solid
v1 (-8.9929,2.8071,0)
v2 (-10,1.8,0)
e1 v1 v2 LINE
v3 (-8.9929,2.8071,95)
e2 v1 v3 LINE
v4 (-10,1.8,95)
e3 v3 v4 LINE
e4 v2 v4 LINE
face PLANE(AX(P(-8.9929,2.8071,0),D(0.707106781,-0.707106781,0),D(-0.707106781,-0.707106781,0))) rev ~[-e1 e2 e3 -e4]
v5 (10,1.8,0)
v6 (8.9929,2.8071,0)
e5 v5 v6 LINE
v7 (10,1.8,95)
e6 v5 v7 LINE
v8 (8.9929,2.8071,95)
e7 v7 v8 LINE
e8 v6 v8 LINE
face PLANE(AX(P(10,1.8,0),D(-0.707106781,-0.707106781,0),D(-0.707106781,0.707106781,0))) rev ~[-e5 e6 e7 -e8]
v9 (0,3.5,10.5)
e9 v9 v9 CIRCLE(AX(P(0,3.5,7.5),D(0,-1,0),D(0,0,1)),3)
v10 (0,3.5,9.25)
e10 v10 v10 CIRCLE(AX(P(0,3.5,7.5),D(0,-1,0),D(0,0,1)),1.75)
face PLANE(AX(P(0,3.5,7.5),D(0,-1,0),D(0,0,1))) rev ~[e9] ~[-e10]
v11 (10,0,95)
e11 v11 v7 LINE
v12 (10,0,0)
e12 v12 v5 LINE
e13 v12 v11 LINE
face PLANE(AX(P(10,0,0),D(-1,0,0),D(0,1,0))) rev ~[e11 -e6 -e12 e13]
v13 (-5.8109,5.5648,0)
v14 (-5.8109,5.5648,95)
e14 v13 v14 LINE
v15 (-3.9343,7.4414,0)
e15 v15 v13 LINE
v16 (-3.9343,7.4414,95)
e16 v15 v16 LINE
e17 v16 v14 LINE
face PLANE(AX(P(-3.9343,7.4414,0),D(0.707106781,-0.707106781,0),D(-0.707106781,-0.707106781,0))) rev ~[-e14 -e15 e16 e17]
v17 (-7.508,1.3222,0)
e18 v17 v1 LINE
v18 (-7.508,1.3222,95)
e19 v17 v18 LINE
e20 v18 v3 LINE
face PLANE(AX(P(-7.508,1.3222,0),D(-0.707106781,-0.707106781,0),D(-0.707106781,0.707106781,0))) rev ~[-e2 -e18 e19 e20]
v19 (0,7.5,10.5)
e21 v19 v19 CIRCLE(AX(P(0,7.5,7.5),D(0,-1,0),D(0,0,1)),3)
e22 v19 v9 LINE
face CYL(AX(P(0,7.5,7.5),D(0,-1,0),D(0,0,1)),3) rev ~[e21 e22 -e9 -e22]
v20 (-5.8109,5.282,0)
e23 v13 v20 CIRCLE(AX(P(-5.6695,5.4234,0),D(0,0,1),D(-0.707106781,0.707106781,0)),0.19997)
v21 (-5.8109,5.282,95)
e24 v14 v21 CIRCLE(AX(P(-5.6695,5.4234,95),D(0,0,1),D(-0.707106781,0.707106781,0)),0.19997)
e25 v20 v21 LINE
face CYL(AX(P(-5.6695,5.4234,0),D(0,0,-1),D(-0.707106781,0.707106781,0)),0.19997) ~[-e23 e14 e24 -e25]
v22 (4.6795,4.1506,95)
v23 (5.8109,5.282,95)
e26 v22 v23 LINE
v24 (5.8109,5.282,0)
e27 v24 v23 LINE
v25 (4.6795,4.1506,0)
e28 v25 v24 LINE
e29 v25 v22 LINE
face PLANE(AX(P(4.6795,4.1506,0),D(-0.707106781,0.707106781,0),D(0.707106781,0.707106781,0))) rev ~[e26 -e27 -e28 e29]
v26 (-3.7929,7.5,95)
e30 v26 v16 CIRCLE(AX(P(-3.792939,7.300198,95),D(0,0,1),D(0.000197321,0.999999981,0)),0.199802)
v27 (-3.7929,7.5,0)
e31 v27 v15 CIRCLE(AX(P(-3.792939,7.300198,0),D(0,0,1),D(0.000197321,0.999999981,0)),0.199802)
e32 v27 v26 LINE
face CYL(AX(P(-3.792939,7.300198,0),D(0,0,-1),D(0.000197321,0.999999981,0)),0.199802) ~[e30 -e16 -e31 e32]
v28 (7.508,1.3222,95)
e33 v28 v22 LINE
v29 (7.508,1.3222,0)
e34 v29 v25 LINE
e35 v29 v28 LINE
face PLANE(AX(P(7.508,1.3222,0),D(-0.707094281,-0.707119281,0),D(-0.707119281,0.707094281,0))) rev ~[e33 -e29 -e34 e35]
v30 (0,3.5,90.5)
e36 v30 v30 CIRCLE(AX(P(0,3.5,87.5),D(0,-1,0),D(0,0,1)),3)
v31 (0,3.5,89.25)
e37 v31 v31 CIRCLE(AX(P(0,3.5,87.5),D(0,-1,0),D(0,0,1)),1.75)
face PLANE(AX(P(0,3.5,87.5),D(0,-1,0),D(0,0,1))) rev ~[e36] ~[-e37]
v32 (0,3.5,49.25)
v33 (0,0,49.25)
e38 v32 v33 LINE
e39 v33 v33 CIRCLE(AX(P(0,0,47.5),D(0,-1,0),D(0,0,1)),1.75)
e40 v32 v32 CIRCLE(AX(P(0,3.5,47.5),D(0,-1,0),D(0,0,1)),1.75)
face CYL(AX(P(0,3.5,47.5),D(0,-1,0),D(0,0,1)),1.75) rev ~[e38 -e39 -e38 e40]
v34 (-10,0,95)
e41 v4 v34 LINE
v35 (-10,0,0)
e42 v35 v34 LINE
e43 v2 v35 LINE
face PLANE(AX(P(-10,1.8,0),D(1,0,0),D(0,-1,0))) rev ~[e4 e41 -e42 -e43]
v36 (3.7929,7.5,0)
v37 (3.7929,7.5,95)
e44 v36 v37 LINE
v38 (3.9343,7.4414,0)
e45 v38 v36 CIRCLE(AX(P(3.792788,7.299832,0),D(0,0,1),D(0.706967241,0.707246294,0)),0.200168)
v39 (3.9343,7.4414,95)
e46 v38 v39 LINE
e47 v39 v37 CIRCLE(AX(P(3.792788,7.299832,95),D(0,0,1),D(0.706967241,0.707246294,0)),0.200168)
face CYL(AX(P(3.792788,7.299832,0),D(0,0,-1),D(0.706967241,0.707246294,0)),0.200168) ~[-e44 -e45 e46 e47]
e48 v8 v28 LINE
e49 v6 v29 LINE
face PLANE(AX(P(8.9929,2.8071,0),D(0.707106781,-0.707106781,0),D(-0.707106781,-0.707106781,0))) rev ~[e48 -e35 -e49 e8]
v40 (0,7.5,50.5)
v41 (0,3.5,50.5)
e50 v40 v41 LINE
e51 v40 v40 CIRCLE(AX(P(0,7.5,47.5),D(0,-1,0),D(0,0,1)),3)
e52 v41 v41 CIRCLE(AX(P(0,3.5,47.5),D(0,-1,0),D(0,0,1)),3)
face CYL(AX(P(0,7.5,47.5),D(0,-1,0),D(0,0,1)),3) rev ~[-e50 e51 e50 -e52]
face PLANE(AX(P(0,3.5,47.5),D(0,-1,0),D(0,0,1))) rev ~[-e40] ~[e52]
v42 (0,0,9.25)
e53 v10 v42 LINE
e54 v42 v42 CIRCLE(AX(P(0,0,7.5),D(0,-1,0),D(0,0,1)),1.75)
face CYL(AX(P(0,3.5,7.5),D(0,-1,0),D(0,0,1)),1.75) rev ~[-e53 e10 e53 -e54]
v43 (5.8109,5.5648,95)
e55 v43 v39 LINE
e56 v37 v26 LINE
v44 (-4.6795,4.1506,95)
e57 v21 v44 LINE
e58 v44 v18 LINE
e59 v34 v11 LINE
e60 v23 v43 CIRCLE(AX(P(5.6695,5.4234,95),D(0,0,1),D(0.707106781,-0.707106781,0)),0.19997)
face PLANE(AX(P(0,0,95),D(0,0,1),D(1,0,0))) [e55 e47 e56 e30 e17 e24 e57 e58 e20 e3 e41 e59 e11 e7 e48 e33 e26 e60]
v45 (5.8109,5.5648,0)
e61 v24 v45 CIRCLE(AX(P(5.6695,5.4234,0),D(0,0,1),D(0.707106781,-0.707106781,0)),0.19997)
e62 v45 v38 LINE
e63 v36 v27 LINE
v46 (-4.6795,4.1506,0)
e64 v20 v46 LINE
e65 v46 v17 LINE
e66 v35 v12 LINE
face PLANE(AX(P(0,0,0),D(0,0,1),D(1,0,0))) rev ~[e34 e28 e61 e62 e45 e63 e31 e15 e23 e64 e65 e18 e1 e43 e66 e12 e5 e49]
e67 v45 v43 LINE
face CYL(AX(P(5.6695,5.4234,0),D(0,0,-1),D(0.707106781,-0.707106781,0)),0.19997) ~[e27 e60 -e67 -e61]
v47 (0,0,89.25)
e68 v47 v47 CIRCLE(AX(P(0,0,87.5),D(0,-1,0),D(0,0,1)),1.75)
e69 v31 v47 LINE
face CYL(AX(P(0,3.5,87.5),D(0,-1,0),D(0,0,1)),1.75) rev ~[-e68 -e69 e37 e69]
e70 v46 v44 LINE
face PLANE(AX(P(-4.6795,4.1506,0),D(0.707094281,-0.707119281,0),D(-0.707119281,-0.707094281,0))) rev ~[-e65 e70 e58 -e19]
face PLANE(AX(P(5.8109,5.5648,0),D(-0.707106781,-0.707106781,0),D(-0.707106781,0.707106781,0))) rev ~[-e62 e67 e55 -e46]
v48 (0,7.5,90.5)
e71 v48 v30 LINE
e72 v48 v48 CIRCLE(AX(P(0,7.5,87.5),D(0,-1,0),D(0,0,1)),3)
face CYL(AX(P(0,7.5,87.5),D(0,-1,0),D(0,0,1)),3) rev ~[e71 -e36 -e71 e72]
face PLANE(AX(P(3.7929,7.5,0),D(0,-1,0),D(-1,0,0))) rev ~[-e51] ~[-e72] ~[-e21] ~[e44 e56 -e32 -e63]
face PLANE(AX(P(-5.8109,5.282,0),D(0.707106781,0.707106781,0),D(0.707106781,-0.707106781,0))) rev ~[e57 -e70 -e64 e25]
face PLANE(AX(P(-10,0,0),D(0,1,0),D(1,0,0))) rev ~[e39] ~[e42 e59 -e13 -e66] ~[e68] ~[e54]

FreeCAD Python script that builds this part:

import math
import FreeCAD as App
import Part
import Sketcher

V = App.Vector

doc = App.newDocument("Part")
params = doc.addObject("Spreadsheet::Sheet", "Params")
for row, (alias, value) in enumerate([
    ("sketch1_radius", "0.2 mm"),
    ("sketch1_width", "20 mm"),
    ("sketch1_length", "4 mm"),
    ("sketch1_height", "1.8 mm"),
    ("sketch1_length2", "2.1 mm"),
    ("pad1_length", "95 mm"),
    ("sketch2_diameter", "3.5 mm"),
    ("hole_diameter", "3.5 mm"),
    ("hole_depth", "7.5 mm"),
    ("hole_cbore_diameter", "6 mm"),
    ("hole_cbore_depth", "4 mm"),
    ("linearpattern_pitch", "40 mm"),
], start=1):
    params.set(f"A{row}", alias)
    params.set(f"B{row}", "=" + value)
    params.setAlias(f"B{row}", alias)

body = doc.addObject("PartDesign::Body", "Body")

# Sketch on XY plane
sketch1 = doc.addObject("Sketcher::SketchObject", "Sketch")
body.addObject(sketch1)
sketch1.AttachmentSupport = (doc.XY_Plane, [""])
sketch1.MapMode = "FlatFace"
sketch1.addGeometry([
    Part.LineSegment(V(-8.99, 2.81, 0), V(-10, 1.8, 0)),  # 0
    Part.LineSegment(V(-10, 1.8, 0), V(-10, 0, 0)),  # 1
    Part.LineSegment(V(-10, 0, 0), V(10, 0, 0)),  # 2
    Part.LineSegment(V(10, 0, 0), V(10, 1.8, 0)),  # 3
    Part.LineSegment(V(10, 1.8, 0), V(8.99, 2.81, 0)),  # 4
    Part.LineSegment(V(8.99, 2.81, 0), V(7.51, 1.32, 0)),  # 5
    Part.LineSegment(V(7.51, 1.32, 0), V(4.68, 4.15, 0)),  # 6
    Part.LineSegment(V(4.68, 4.15, 0), V(5.81, 5.28, 0)),  # 7
    Part.ArcOfCircle(Part.Circle(V(5.67, 5.42, 0), V(0, 0, 1), 0.2), math.radians(-45), math.radians(45)),  # 8
    Part.LineSegment(V(5.81, 5.56, 0), V(3.93, 7.44, 0)),  # 9
    Part.ArcOfCircle(Part.Circle(V(3.79, 7.3, 0), V(0, 0, 1), 0.2), math.radians(45), math.radians(90)),  # 10
    Part.LineSegment(V(3.79, 7.5, 0), V(-3.79, 7.5, 0)),  # 11
    Part.ArcOfCircle(Part.Circle(V(-3.79, 7.3, 0), V(0, 0, 1), 0.2), math.radians(90), math.radians(135)),  # 12
    Part.LineSegment(V(-3.93, 7.44, 0), V(-5.81, 5.56, 0)),  # 13
    Part.ArcOfCircle(Part.Circle(V(-5.67, 5.42, 0), V(0, 0, 1), 0.2), math.radians(135), math.radians(225)),  # 14
    Part.LineSegment(V(-5.81, 5.28, 0), V(-4.68, 4.15, 0)),  # 15
    Part.LineSegment(V(-4.68, 4.15, 0), V(-7.51, 1.32, 0)),  # 16
    Part.LineSegment(V(-7.51, 1.32, 0), V(-8.99, 2.81, 0)),  # 17
], False)
sketch1.addConstraint([
    Sketcher.Constraint("Coincident", 0, 2, 1, 1),
    Sketcher.Constraint("Coincident", 1, 2, 2, 1),
    Sketcher.Constraint("Coincident", 2, 2, 3, 1),
    Sketcher.Constraint("Coincident", 3, 2, 4, 1),
    Sketcher.Constraint("Coincident", 4, 2, 5, 1),
    Sketcher.Constraint("Coincident", 5, 2, 6, 1),
    Sketcher.Constraint("Coincident", 6, 2, 7, 1),
    Sketcher.Constraint("Tangent", 7, 2, 8, 1),
    Sketcher.Constraint("Tangent", 8, 2, 9, 1),
    Sketcher.Constraint("Tangent", 9, 2, 10, 1),
    Sketcher.Constraint("Tangent", 10, 2, 11, 1),
    Sketcher.Constraint("Tangent", 11, 2, 12, 1),
    Sketcher.Constraint("Tangent", 12, 2, 13, 1),
    Sketcher.Constraint("Tangent", 13, 2, 14, 1),
    Sketcher.Constraint("Tangent", 14, 2, 15, 1),
    Sketcher.Constraint("Coincident", 15, 2, 16, 1),
    Sketcher.Constraint("Coincident", 16, 2, 17, 1),
    Sketcher.Constraint("Coincident", 17, 2, 0, 1),
    Sketcher.Constraint("Vertical", 1),
    Sketcher.Constraint("Horizontal", 2),
    Sketcher.Constraint("Vertical", 3),
    Sketcher.Constraint("Horizontal", 11),
    Sketcher.Constraint("Equal", 8, 10),
    Sketcher.Constraint("Equal", 10, 12),
    Sketcher.Constraint("Equal", 12, 14),
    Sketcher.Constraint("Symmetric", 1, 2, 2, 2, -1, 1),
    Sketcher.Constraint("Symmetric", 8, 3, 14, 3, -2),
    Sketcher.Constraint("Symmetric", 6, 2, 15, 2, -2),
    Sketcher.Constraint("Symmetric", 5, 2, 16, 2, -2),
    Sketcher.Constraint("Symmetric", 4, 2, 17, 2, -2),
    Sketcher.Constraint("Perpendicular", 0, 4),
    Sketcher.Constraint("Perpendicular", 4, 5),
    Sketcher.Constraint("Perpendicular", 5, 6),
    Sketcher.Constraint("Perpendicular", 6, 7),
    Sketcher.Constraint("Perpendicular", 7, 9),
    Sketcher.Constraint("Perpendicular", 9, 13),
    Sketcher.Constraint("Perpendicular", 13, 15),
    Sketcher.Constraint("Radius", 8, 0.2),
    Sketcher.Constraint("DistanceX", 2, 1, 2, 2, 20.0),
    Sketcher.Constraint("Distance", 6, 4.0),
    Sketcher.Constraint("DistanceY", 1, 2, 1, 1, 1.8),
    Sketcher.Constraint("Distance", 5, 2.1),
    Sketcher.Constraint("Distance", 7, 1.6),
    Sketcher.Constraint("DistanceY", -1, 1, 10, 3, 7.3),
    Sketcher.Constraint("DistanceX", 10, 3, 4, 2, 5.2),
])
sketch1.setExpression("Constraints[37]", "Params.sketch1_radius")
sketch1.setExpression("Constraints[38]", "Params.sketch1_width")
sketch1.setExpression("Constraints[39]", "Params.sketch1_length")
sketch1.setExpression("Constraints[40]", "Params.sketch1_height")
sketch1.setExpression("Constraints[41]", "Params.sketch1_length2")
pad1 = doc.addObject("PartDesign::Pad", "Pad")
body.addObject(pad1)
pad1.Profile = sketch1
pad1.setExpression("Length", "Params.pad1_length")

# Sketch on XZ plane
sketch2 = doc.addObject("Sketcher::SketchObject", "Sketch001")
body.addObject(sketch2)
sketch2.AttachmentSupport = (doc.XZ_Plane, [""])
sketch2.MapMode = "FlatFace"
sketch2.AttachmentOffset = App.Placement(V(0, 0, -7.5), App.Rotation())
sketch2.addGeometry(Part.Circle(V(0, 7.5, 0), V(0, 0, 1), 1.8), False)
sketch2.addConstraint([
    Sketcher.Constraint("PointOnObject", 0, 3, -2),
    Sketcher.Constraint("Diameter", 0, 3.5),
    Sketcher.Constraint("DistanceY", -1, 1, 0, 3, 7.5),
])
sketch2.setExpression("Constraints[1]", "Params.sketch2_diameter")
doc.recompute()
hole = doc.addObject("PartDesign::Hole", "Hole")
body.addObject(hole)
hole.Profile = sketch2
hole.ThreadType = "None"
hole.setExpression("Diameter", "Params.hole_diameter")
hole.DepthType = "Dimension"
hole.setExpression("Depth", "Params.hole_depth")
hole.DrillPoint = "Flat"
hole.HoleCutType = "Counterbore"
hole.setExpression("HoleCutDiameter", "Params.hole_cbore_diameter")
hole.setExpression("HoleCutDepth", "Params.hole_cbore_depth")
hole.Reversed = True
doc.recompute()

linearpattern = doc.addObject("PartDesign::LinearPattern", "LinearPattern")
body.addObject(linearpattern)
linearpattern.Originals = [hole]
linearpattern.Direction = (doc.Z_Axis, [""])
linearpattern.Mode = "offset"
linearpattern.setExpression("Offset", "Params.linearpattern_pitch")
linearpattern.Occurrences = 3
body.Tip = linearpattern

doc.recompute()
